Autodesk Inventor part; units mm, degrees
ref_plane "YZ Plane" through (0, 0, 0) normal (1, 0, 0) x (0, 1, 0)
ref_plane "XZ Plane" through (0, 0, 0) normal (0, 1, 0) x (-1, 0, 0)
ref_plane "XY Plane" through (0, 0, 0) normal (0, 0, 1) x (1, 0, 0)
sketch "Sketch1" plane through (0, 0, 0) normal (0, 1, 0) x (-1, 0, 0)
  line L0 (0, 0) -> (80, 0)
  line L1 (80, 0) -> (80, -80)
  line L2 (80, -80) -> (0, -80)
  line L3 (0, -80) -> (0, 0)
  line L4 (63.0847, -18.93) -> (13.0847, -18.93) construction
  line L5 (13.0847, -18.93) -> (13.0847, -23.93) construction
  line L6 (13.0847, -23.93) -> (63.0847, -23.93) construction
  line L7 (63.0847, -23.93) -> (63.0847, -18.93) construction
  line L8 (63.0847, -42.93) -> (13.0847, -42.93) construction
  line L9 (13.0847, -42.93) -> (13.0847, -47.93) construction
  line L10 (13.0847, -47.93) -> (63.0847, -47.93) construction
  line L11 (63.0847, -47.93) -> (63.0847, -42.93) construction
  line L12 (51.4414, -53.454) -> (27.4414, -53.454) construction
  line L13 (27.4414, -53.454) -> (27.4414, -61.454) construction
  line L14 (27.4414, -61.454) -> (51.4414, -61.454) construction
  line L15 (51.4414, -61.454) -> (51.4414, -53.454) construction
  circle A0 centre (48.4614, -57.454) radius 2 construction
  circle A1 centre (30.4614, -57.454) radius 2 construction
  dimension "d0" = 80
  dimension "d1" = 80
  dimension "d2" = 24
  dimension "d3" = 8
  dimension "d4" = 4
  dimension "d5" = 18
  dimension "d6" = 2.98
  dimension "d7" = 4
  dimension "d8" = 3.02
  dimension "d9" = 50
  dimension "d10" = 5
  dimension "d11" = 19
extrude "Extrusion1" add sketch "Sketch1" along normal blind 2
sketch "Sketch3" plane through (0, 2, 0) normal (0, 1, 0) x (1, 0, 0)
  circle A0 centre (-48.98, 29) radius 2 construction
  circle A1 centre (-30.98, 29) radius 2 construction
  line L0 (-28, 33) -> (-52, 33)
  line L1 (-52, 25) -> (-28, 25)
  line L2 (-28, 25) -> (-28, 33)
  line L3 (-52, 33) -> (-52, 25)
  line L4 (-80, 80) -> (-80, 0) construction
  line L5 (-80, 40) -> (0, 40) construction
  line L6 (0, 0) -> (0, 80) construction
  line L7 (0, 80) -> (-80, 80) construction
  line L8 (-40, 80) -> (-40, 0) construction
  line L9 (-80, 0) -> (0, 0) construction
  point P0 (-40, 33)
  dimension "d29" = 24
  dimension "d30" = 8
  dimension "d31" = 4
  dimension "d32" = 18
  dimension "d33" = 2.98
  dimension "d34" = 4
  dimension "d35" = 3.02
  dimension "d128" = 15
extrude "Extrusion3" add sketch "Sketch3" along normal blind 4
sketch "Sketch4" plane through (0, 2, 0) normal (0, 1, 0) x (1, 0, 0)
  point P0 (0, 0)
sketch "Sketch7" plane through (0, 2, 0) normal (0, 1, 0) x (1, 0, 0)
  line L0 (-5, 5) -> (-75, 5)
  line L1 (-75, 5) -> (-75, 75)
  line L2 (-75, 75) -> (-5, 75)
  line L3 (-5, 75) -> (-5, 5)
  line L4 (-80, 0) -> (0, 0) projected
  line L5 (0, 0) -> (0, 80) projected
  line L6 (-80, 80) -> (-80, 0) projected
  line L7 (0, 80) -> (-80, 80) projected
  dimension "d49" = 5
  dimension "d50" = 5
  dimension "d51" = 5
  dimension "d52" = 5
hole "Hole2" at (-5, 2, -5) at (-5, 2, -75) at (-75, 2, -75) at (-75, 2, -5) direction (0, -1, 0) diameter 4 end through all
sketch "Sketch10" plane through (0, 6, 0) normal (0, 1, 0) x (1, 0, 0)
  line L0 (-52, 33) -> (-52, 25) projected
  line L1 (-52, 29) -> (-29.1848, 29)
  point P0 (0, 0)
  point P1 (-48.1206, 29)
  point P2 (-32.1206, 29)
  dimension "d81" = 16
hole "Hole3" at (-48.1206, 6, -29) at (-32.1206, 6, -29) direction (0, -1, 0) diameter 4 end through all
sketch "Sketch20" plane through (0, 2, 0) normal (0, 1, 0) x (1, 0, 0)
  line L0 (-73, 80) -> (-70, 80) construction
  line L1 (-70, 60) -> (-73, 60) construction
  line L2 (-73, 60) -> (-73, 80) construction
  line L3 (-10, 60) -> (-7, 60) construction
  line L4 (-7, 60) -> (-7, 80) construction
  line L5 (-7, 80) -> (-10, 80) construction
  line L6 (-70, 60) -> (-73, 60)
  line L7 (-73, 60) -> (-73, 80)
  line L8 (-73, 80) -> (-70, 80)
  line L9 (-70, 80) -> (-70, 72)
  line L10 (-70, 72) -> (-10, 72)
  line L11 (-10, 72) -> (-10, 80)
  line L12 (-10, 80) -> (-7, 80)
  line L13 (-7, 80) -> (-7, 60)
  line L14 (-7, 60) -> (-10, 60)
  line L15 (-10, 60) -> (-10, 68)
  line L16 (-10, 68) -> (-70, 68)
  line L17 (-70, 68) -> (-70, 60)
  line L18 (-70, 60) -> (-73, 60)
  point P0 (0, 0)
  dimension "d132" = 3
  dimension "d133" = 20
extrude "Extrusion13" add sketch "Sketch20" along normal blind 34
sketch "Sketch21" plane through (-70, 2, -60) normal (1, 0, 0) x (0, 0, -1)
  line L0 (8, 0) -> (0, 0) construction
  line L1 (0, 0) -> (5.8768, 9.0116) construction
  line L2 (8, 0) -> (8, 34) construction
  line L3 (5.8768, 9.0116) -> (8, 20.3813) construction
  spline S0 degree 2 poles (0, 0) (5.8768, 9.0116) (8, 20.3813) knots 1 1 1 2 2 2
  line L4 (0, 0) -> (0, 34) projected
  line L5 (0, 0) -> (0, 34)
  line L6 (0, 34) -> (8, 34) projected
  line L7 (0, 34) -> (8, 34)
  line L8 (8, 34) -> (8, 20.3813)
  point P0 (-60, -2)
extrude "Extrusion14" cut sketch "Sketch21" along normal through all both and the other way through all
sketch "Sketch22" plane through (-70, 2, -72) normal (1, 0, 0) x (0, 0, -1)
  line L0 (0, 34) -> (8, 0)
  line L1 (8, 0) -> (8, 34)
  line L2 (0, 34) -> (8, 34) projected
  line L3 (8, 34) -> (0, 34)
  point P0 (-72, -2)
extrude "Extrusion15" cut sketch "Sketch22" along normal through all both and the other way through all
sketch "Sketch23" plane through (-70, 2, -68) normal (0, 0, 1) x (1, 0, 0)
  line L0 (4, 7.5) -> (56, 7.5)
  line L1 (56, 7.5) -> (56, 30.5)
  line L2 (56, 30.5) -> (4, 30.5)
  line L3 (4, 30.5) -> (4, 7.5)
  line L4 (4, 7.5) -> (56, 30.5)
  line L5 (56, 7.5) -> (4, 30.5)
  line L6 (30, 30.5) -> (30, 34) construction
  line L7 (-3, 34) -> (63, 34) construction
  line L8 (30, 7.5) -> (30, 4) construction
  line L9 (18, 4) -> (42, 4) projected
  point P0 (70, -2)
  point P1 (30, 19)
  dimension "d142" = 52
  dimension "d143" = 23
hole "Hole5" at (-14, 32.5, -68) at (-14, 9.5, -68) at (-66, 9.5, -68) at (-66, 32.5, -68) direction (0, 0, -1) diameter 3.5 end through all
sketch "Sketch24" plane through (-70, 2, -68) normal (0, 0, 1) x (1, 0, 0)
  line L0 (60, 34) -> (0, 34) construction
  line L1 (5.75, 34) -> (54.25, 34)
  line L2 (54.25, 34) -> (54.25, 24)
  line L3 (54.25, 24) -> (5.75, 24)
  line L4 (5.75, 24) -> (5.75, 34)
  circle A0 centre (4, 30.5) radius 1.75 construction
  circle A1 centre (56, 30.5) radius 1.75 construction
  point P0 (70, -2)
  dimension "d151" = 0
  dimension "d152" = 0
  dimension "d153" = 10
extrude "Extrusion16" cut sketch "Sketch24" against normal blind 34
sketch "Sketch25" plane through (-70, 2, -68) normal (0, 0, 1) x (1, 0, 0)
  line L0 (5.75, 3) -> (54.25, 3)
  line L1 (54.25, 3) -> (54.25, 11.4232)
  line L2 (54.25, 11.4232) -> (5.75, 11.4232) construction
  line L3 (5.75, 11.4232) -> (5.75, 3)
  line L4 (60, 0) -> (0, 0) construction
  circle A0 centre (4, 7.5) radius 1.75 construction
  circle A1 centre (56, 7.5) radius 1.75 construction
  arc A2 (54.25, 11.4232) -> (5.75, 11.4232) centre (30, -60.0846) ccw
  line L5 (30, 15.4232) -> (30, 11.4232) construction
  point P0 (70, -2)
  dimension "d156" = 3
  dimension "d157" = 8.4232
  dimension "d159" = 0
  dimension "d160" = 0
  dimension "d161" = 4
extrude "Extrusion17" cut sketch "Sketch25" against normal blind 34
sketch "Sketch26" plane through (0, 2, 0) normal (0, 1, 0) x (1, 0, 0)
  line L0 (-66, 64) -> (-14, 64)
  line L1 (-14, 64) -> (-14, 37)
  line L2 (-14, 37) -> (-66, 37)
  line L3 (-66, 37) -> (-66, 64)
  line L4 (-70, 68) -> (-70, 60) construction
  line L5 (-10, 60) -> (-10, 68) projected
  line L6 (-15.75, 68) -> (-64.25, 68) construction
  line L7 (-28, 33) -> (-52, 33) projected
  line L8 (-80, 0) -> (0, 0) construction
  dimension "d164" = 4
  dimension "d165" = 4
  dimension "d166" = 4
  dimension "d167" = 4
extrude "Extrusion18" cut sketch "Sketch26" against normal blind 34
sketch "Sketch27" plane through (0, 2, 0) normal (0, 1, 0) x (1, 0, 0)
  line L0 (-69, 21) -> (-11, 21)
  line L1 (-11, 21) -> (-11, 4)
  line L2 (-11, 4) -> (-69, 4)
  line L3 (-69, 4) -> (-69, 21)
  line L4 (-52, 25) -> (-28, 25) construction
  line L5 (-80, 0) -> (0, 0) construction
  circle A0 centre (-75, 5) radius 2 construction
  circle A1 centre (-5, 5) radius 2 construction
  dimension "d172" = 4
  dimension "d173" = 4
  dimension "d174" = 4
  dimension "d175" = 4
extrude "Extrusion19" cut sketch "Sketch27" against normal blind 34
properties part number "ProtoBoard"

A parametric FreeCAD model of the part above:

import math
import FreeCAD as App
import Part
import Sketcher
Q = App.Units.Quantity


def add_polygon(sketch, points):
    """Adds a closed chain of lines whose ends are joined by coincident constraints."""
    first, n = sketch.GeometryCount, len(points)
    for a, b in zip(points, points[1:] + points[:1]):
        sketch.addGeometry(Part.LineSegment(App.Vector(*a, 0), App.Vector(*b, 0)), False)
    for i in range(n):
        sketch.addConstraint(Sketcher.Constraint("Coincident", first + i, 2, first + (i + 1) % n, 1))

doc = App.newDocument("Part")
body = doc.addObject("PartDesign::Body", "Body")

sketch1 = doc.addObject("Sketcher::SketchObject", "Sketch")
body.addObject(sketch1)
sketch1.AttachmentSupport = (doc.XZ_Plane, [""])
sketch1.MapMode = "FlatFace"
add_polygon(sketch1, [(-80, 0), (0, 0), (0, -80), (-80, -80)])
sketch1.addConstraint([
    Sketcher.Constraint("Horizontal", 0),
    Sketcher.Constraint("Vertical", 1),
    Sketcher.Constraint("Horizontal", 2),
    Sketcher.Constraint("Vertical", 3),
    Sketcher.Constraint("Coincident", 0, 2, -1, 1),
    Sketcher.Constraint("Equal", 2, 1),
    Sketcher.Constraint("DistanceX", 0, 1, 0, 2, Q("80 mm")),
])
pad1 = doc.addObject("PartDesign::Pad", "Pad")
body.addObject(pad1)
pad1.Profile = sketch1
pad1.Length = 2
pad1.Reversed = True

sketch2 = doc.addObject("Sketcher::SketchObject", "Sketch001")
body.addObject(sketch2)
sketch2.AttachmentSupport = (doc.XZ_Plane, [""])
sketch2.MapMode = "FlatFace"
sketch2.AttachmentOffset = App.Placement(App.Vector(0, 0, -2), App.Rotation())
add_polygon(sketch2, [(-28, -25), (-28, -33), (-52, -33), (-52, -25)])
sketch2.addConstraint([
    Sketcher.Constraint("Vertical", 0),
    Sketcher.Constraint("Horizontal", 1),
    Sketcher.Constraint("Vertical", 2),
    Sketcher.Constraint("Horizontal", 3),
    Sketcher.Constraint("DistanceX", 1, 2, 1, 1, Q("24 mm")),
    Sketcher.Constraint("DistanceY", 0, 2, 0, 1, Q("8 mm")),
    Sketcher.Constraint("DistanceX", 0, 2, -1, 1, Q("28 mm")),
    Sketcher.Constraint("DistanceY", 0, 2, -1, 1, Q("33 mm")),
])
pad2 = doc.addObject("PartDesign::Pad", "Pad001")
body.addObject(pad2)
pad2.Profile = sketch2
pad2.Length = 4
pad2.Reversed = True

sketch3 = doc.addObject("Sketcher::SketchObject", "Sketch002")
body.addObject(sketch3)
sketch3.AttachmentSupport = (doc.XZ_Plane, [""])
sketch3.MapMode = "FlatFace"
sketch3.AttachmentOffset = App.Placement(App.Vector(0, 0, -2), App.Rotation())
sketch3.addGeometry([
    Part.Circle(App.Vector(-5, -5, 0), App.Vector(0, 0, 1), 2),
    Part.Circle(App.Vector(-5, -75, 0), App.Vector(0, 0, 1), 2),
    Part.Circle(App.Vector(-75, -75, 0), App.Vector(0, 0, 1), 2),
    Part.Circle(App.Vector(-75, -5, 0), App.Vector(0, 0, 1), 2),
], False)
sketch3.addConstraint([
    Sketcher.Constraint("Equal", 0, 1),
    Sketcher.Constraint("Equal", 1, 2),
    Sketcher.Constraint("Equal", 2, 3),
    Sketcher.Constraint("Horizontal", 1, 3, 2, 3),
    Sketcher.Constraint("Horizontal", 0, 3, 3, 3),
    Sketcher.Constraint("Vertical", 0, 3, 1, 3),
    Sketcher.Constraint("Vertical", 2, 3, 3, 3),
    Sketcher.Constraint("Diameter", 0, Q("4 mm")),
    Sketcher.Constraint("DistanceX", 0, 3, -1, 1, Q("5 mm")),
    Sketcher.Constraint("DistanceY", 0, 3, -1, 1, Q("5 mm")),
    Sketcher.Constraint("DistanceY", 1, 3, -1, 1, Q("75 mm")),
    Sketcher.Constraint("DistanceX", 2, 3, -1, 1, Q("75 mm")),
])
doc.recompute()
hole = doc.addObject("PartDesign::Hole", "Hole")
body.addObject(hole)
hole.Profile = sketch3
hole.ThreadType = "None"
hole.Diameter = 4
hole.DepthType = "ThroughAll"
hole.Reversed = True

sketch4 = doc.addObject("Sketcher::SketchObject", "Sketch003")
body.addObject(sketch4)
sketch4.AttachmentSupport = (doc.XZ_Plane, [""])
sketch4.MapMode = "FlatFace"
sketch4.AttachmentOffset = App.Placement(App.Vector(0, 0, -6), App.Rotation())
sketch4.addGeometry([
    Part.Circle(App.Vector(-48.1, -29, 0), App.Vector(0, 0, 1), 2),
    Part.Circle(App.Vector(-32.1, -29, 0), App.Vector(0, 0, 1), 2),
], False)
sketch4.addConstraint([
    Sketcher.Constraint("Equal", 0, 1),
    Sketcher.Constraint("Horizontal", 0, 3, 1, 3),
    Sketcher.Constraint("Diameter", 0, Q("4 mm")),
    Sketcher.Constraint("DistanceY", 0, 3, -1, 1, Q("29 mm")),
    Sketcher.Constraint("DistanceX", 0, 3, 1, 3, Q("16 mm")),
    Sketcher.Constraint("DistanceX", 0, 3, -1, 1, Q("48.1206 mm")),
])
doc.recompute()
hole2 = doc.addObject("PartDesign::Hole", "Hole001")
body.addObject(hole2)
hole2.Profile = sketch4
hole2.ThreadType = "None"
hole2.Diameter = 4
hole2.DepthType = "ThroughAll"
hole2.Reversed = True

sketch5 = doc.addObject("Sketcher::SketchObject", "Sketch004")
body.addObject(sketch5)
sketch5.AttachmentSupport = (doc.XZ_Plane, [""])
sketch5.MapMode = "FlatFace"
sketch5.AttachmentOffset = App.Placement(App.Vector(0, 0, -2), App.Rotation())
add_polygon(sketch5, [(-73, -60), (-70, -60), (-70, -68), (-10, -68), (-10, -60), (-7, -60), (-7, -80), (-10, -80), (-10, -72), (-70, -72), (-70, -80), (-73, -80)])
sketch5.addConstraint([
    Sketcher.Constraint("Horizontal", 0),
    Sketcher.Constraint("Vertical", 1),
    Sketcher.Constraint("Horizontal", 2),
    Sketcher.Constraint("Vertical", 3),
    Sketcher.Constraint("Horizontal", 4),
    Sketcher.Constraint("Vertical", 5),
    Sketcher.Constraint("Horizontal", 6),
    Sketcher.Constraint("Vertical", 7),
    Sketcher.Constraint("Horizontal", 8),
    Sketcher.Constraint("Vertical", 9),
    Sketcher.Constraint("Horizontal", 10),
    Sketcher.Constraint("Vertical", 11),
    Sketcher.Constraint("Horizontal", 0, 2, 3, 2),
    Sketcher.Constraint("Horizontal", 6, 2, 9, 2),
    Sketcher.Constraint("Vertical", 3, 2, 6, 2),
    Sketcher.Constraint("Vertical", 1, 2, 8, 2),
    Sketcher.Constraint("Equal", 0, 4),
    Sketcher.Constraint("Equal", 3, 7),
    Sketcher.Constraint("DistanceX", 0, 1, 0, 2, Q("3 mm")),
    Sketcher.Constraint("DistanceY", 5, 2, 5, 1, Q("20 mm")),
    Sketcher.Constraint("DistanceX", 2, 1, 2, 2, Q("60 mm")),
    Sketcher.Constraint("DistanceY", 1, 2, 1, 1, Q("8 mm")),
    Sketcher.Constraint("DistanceX", 0, 2, -1, 1, Q("70 mm")),
    Sketcher.Constraint("DistanceY", 0, 2, -1, 1, Q("60 mm")),
])
pad3 = doc.addObject("PartDesign::Pad", "Pad002")
body.addObject(pad3)
pad3.Profile = sketch5
pad3.Length = 34
pad3.Reversed = True

sketch6 = doc.addObject("Sketcher::SketchObject", "Sketch005")
body.addObject(sketch6)
sketch6.AttachmentSupport = (doc.YZ_Plane, [""])
sketch6.MapMode = "FlatFace"
sketch6.AttachmentOffset = App.Placement(App.Vector(0, 0, -70), App.Rotation())
sketch6.addGeometry([
    Part.LineSegment(App.Vector(36, -60, 0), App.Vector(2, -60, 0)),
    Part.BSplineCurve([App.Vector(2, -60, 0), App.Vector(11.0116, -65.8768, 0), App.Vector(22.3813, -68, 0)], [3, 3], [1, 2], False, 2, [1, 1, 1], False),
    Part.LineSegment(App.Vector(22.3813, -68, 0), App.Vector(36, -68, 0)),
    Part.LineSegment(App.Vector(36, -68, 0), App.Vector(36, -60, 0)),
], False)
sketch6.addConstraint([
    Sketcher.Constraint("Block", 1),
    Sketcher.Constraint("Coincident", 0, 2, 1, 1),
    Sketcher.Constraint("Coincident", 1, 2, 2, 1),
    Sketcher.Constraint("Coincident", 2, 2, 3, 1),
    Sketcher.Constraint("Coincident", 3, 2, 0, 1),
    Sketcher.Constraint("Horizontal", 0),
    Sketcher.Constraint("Horizontal", 2),
    Sketcher.Constraint("Vertical", 3),
    Sketcher.Constraint("DistanceX", 0, 2, 0, 1, Q("34 mm")),
])
pocket1 = doc.addObject("PartDesign::Pocket", "Pocket")
body.addObject(pocket1)
pocket1.Profile = sketch6
pocket1.Type = "ThroughAll"
pocket1.Midplane = True

sketch7 = doc.addObject("Sketcher::SketchObject", "Sketch006")
body.addObject(sketch7)
sketch7.AttachmentSupport = (doc.YZ_Plane, [""])
sketch7.MapMode = "FlatFace"
sketch7.AttachmentOffset = App.Placement(App.Vector(0, 0, -70), App.Rotation())
add_polygon(sketch7, [(36, -80), (36, -72), (2, -80)])
sketch7.addConstraint([
    Sketcher.Constraint("Vertical", 0),
    Sketcher.Constraint("Horizontal", 2),
    Sketcher.Constraint("DistanceX", 2, 1, 2, 2, Q("34 mm")),
    Sketcher.Constraint("DistanceY", 0, 1, 0, 2, Q("8 mm")),
    Sketcher.Constraint("DistanceX", -1, 1, 0, 2, Q("36 mm")),
    Sketcher.Constraint("DistanceY", 0, 2, -1, 1, Q("72 mm")),
])
pocket2 = doc.addObject("PartDesign::Pocket", "Pocket001")
body.addObject(pocket2)
pocket2.Profile = sketch7
pocket2.Type = "ThroughAll"
pocket2.Midplane = True

sketch8 = doc.addObject("Sketcher::SketchObject", "Sketch007")
body.addObject(sketch8)
sketch8.AttachmentSupport = (doc.XY_Plane, [""])
sketch8.MapMode = "FlatFace"
sketch8.AttachmentOffset = App.Placement(App.Vector(0, 0, -68), App.Rotation())
sketch8.addGeometry([
    Part.Circle(App.Vector(-14, 32.5, 0), App.Vector(0, 0, 1), 1.8),
    Part.Circle(App.Vector(-14, 9.5, 0), App.Vector(0, 0, 1), 1.8),
    Part.Circle(App.Vector(-66, 9.5, 0), App.Vector(0, 0, 1), 1.8),
    Part.Circle(App.Vector(-66, 32.5, 0), App.Vector(0, 0, 1), 1.8),
], False)
sketch8.addConstraint([
    Sketcher.Constraint("Equal", 0, 1),
    Sketcher.Constraint("Equal", 1, 2),
    Sketcher.Constraint("Equal", 2, 3),
    Sketcher.Constraint("Horizontal", 1, 3, 2, 3),
    Sketcher.Constraint("Horizontal", 0, 3, 3, 3),
    Sketcher.Constraint("Vertical", 0, 3, 1, 3),
    Sketcher.Constraint("Vertical", 2, 3, 3, 3),
    Sketcher.Constraint("Diameter", 0, Q("3.5 mm")),
    Sketcher.Constraint("DistanceX", 0, 3, -1, 1, Q("14 mm")),
    Sketcher.Constraint("DistanceX", 2, 3, -1, 1, Q("66 mm")),
    Sketcher.Constraint("DistanceY", 1, 3, 0, 3, Q("23 mm")),
    Sketcher.Constraint("DistanceY", -1, 1, 0, 3, Q("32.5 mm")),
])
doc.recompute()
hole3 = doc.addObject("PartDesign::Hole", "Hole002")
body.addObject(hole3)
hole3.Profile = sketch8
hole3.ThreadType = "None"
hole3.Diameter = 3.5
hole3.DepthType = "ThroughAll"

sketch9 = doc.addObject("Sketcher::SketchObject", "Sketch008")
body.addObject(sketch9)
sketch9.AttachmentSupport = (doc.XY_Plane, [""])
sketch9.MapMode = "FlatFace"
sketch9.AttachmentOffset = App.Placement(App.Vector(0, 0, -68), App.Rotation())
add_polygon(sketch9, [(-16, 36), (-64, 36), (-64, 26), (-16, 26)])
sketch9.addConstraint([
    Sketcher.Constraint("Horizontal", 0),
    Sketcher.Constraint("Vertical", 1),
    Sketcher.Constraint("Horizontal", 2),
    Sketcher.Constraint("Vertical", 3),
    Sketcher.Constraint("DistanceY", 1, 2, 1, 1, Q("10 mm")),
    Sketcher.Constraint("DistanceX", 0, 2, 0, 1, Q("48.5 mm")),
    Sketcher.Constraint("DistanceY", -1, 1, 0, 2, Q("36 mm")),
    Sketcher.Constraint("DistanceX", 0, 2, -1, 1, Q("64.25 mm")),
])
pocket3 = doc.addObject("PartDesign::Pocket", "Pocket002")
body.addObject(pocket3)
pocket3.Profile = sketch9
pocket3.Length = 34

sketch10 = doc.addObject("Sketcher::SketchObject", "Sketch009")
body.addObject(sketch10)
sketch10.AttachmentSupport = (doc.XY_Plane, [""])
sketch10.MapMode = "FlatFace"
sketch10.AttachmentOffset = App.Placement(App.Vector(0, 0, -68), App.Rotation())
sketch10.addGeometry([
    Part.LineSegment(App.Vector(-64, 13, 0), App.Vector(-64, 5, 0)),
    Part.LineSegment(App.Vector(-64, 5, 0), App.Vector(-16, 5, 0)),
    Part.LineSegment(App.Vector(-16, 5, 0), App.Vector(-16, 13, 0)),
    Part.ArcOfCircle(Part.Circle(App.Vector(-40, -58, 0), App.Vector(0, 0, 1), 76), math.radians(71), math.radians(109)),
], False)
sketch10.addConstraint([
    Sketcher.Constraint("Coincident", 0, 2, 1, 1),
    Sketcher.Constraint("Coincident", 1, 2, 2, 1),
    Sketcher.Constraint("Coincident", 2, 2, 3, 1),
    Sketcher.Constraint("Coincident", 3, 2, 0, 1),
    Sketcher.Constraint("Vertical", 0),
    Sketcher.Constraint("Horizontal", 1),
    Sketcher.Constraint("Vertical", 2),
    Sketcher.Constraint("Horizontal", 2, 2, 3, 2),
    Sketcher.Constraint("DistanceX", 1, 1, 1, 2, Q("48.5 mm")),
    Sketcher.Constraint("DistanceY", 0, 2, 0, 1, Q("8.4232 mm")),
    Sketcher.Constraint("DistanceX", 3, 3, -1, 1, Q("40 mm")),
    Sketcher.Constraint("DistanceY", -1, 1, 0, 2, Q("5 mm")),
    Sketcher.Constraint("Radius", 3, Q("75.5078 mm")),
])
pocket4 = doc.addObject("PartDesign::Pocket", "Pocket003")
body.addObject(pocket4)
pocket4.Profile = sketch10
pocket4.Length = 34

sketch11 = doc.addObject("Sketcher::SketchObject", "Sketch010")
body.addObject(sketch11)
sketch11.AttachmentSupport = (doc.XZ_Plane, [""])
sketch11.MapMode = "FlatFace"
sketch11.AttachmentOffset = App.Placement(App.Vector(0, 0, -2), App.Rotation())
add_polygon(sketch11, [(-14, -64), (-66, -64), (-66, -37), (-14, -37)])
sketch11.addConstraint([
    Sketcher.Constraint("Horizontal", 0),
    Sketcher.Constraint("Vertical", 1),
    Sketcher.Constraint("Horizontal", 2),
    Sketcher.Constraint("Vertical", 3),
    Sketcher.Constraint("DistanceX", 0, 2, 0, 1, Q("52 mm")),
    Sketcher.Constraint("DistanceY", 1, 1, 1, 2, Q("27 mm")),
    Sketcher.Constraint("DistanceX", 0, 2, -1, 1, Q("66 mm")),
    Sketcher.Constraint("DistanceY", 0, 2, -1, 1, Q("64 mm")),
])
pocket5 = doc.addObject("PartDesign::Pocket", "Pocket004")
body.addObject(pocket5)
pocket5.Profile = sketch11
pocket5.Length = 34
pocket5.Reversed = True

sketch12 = doc.addObject("Sketcher::SketchObject", "Sketch011")
body.addObject(sketch12)
sketch12.AttachmentSupport = (doc.XZ_Plane, [""])
sketch12.MapMode = "FlatFace"
sketch12.AttachmentOffset = App.Placement(App.Vector(0, 0, -2), App.Rotation())
add_polygon(sketch12, [(-11, -21), (-69, -21), (-69, -4), (-11, -4)])
sketch12.addConstraint([
    Sketcher.Constraint("Horizontal", 0),
    Sketcher.Constraint("Vertical", 1),
    Sketcher.Constraint("Horizontal", 2),
    Sketcher.Constraint("Vertical", 3),
    Sketcher.Constraint("DistanceY", 1, 2, -1, 1, Q("4 mm")),
    Sketcher.Constraint("DistanceX", 0, 2, 0, 1, Q("58 mm")),
    Sketcher.Constraint("DistanceY", 1, 1, 1, 2, Q("17 mm")),
    Sketcher.Constraint("DistanceX", 0, 2, -1, 1, Q("69 mm")),
])
pocket6 = doc.addObject("PartDesign::Pocket", "Pocket005")
body.addObject(pocket6)
pocket6.Profile = sketch12
pocket6.Length = 34
pocket6.Reversed = True

doc.recompute()
